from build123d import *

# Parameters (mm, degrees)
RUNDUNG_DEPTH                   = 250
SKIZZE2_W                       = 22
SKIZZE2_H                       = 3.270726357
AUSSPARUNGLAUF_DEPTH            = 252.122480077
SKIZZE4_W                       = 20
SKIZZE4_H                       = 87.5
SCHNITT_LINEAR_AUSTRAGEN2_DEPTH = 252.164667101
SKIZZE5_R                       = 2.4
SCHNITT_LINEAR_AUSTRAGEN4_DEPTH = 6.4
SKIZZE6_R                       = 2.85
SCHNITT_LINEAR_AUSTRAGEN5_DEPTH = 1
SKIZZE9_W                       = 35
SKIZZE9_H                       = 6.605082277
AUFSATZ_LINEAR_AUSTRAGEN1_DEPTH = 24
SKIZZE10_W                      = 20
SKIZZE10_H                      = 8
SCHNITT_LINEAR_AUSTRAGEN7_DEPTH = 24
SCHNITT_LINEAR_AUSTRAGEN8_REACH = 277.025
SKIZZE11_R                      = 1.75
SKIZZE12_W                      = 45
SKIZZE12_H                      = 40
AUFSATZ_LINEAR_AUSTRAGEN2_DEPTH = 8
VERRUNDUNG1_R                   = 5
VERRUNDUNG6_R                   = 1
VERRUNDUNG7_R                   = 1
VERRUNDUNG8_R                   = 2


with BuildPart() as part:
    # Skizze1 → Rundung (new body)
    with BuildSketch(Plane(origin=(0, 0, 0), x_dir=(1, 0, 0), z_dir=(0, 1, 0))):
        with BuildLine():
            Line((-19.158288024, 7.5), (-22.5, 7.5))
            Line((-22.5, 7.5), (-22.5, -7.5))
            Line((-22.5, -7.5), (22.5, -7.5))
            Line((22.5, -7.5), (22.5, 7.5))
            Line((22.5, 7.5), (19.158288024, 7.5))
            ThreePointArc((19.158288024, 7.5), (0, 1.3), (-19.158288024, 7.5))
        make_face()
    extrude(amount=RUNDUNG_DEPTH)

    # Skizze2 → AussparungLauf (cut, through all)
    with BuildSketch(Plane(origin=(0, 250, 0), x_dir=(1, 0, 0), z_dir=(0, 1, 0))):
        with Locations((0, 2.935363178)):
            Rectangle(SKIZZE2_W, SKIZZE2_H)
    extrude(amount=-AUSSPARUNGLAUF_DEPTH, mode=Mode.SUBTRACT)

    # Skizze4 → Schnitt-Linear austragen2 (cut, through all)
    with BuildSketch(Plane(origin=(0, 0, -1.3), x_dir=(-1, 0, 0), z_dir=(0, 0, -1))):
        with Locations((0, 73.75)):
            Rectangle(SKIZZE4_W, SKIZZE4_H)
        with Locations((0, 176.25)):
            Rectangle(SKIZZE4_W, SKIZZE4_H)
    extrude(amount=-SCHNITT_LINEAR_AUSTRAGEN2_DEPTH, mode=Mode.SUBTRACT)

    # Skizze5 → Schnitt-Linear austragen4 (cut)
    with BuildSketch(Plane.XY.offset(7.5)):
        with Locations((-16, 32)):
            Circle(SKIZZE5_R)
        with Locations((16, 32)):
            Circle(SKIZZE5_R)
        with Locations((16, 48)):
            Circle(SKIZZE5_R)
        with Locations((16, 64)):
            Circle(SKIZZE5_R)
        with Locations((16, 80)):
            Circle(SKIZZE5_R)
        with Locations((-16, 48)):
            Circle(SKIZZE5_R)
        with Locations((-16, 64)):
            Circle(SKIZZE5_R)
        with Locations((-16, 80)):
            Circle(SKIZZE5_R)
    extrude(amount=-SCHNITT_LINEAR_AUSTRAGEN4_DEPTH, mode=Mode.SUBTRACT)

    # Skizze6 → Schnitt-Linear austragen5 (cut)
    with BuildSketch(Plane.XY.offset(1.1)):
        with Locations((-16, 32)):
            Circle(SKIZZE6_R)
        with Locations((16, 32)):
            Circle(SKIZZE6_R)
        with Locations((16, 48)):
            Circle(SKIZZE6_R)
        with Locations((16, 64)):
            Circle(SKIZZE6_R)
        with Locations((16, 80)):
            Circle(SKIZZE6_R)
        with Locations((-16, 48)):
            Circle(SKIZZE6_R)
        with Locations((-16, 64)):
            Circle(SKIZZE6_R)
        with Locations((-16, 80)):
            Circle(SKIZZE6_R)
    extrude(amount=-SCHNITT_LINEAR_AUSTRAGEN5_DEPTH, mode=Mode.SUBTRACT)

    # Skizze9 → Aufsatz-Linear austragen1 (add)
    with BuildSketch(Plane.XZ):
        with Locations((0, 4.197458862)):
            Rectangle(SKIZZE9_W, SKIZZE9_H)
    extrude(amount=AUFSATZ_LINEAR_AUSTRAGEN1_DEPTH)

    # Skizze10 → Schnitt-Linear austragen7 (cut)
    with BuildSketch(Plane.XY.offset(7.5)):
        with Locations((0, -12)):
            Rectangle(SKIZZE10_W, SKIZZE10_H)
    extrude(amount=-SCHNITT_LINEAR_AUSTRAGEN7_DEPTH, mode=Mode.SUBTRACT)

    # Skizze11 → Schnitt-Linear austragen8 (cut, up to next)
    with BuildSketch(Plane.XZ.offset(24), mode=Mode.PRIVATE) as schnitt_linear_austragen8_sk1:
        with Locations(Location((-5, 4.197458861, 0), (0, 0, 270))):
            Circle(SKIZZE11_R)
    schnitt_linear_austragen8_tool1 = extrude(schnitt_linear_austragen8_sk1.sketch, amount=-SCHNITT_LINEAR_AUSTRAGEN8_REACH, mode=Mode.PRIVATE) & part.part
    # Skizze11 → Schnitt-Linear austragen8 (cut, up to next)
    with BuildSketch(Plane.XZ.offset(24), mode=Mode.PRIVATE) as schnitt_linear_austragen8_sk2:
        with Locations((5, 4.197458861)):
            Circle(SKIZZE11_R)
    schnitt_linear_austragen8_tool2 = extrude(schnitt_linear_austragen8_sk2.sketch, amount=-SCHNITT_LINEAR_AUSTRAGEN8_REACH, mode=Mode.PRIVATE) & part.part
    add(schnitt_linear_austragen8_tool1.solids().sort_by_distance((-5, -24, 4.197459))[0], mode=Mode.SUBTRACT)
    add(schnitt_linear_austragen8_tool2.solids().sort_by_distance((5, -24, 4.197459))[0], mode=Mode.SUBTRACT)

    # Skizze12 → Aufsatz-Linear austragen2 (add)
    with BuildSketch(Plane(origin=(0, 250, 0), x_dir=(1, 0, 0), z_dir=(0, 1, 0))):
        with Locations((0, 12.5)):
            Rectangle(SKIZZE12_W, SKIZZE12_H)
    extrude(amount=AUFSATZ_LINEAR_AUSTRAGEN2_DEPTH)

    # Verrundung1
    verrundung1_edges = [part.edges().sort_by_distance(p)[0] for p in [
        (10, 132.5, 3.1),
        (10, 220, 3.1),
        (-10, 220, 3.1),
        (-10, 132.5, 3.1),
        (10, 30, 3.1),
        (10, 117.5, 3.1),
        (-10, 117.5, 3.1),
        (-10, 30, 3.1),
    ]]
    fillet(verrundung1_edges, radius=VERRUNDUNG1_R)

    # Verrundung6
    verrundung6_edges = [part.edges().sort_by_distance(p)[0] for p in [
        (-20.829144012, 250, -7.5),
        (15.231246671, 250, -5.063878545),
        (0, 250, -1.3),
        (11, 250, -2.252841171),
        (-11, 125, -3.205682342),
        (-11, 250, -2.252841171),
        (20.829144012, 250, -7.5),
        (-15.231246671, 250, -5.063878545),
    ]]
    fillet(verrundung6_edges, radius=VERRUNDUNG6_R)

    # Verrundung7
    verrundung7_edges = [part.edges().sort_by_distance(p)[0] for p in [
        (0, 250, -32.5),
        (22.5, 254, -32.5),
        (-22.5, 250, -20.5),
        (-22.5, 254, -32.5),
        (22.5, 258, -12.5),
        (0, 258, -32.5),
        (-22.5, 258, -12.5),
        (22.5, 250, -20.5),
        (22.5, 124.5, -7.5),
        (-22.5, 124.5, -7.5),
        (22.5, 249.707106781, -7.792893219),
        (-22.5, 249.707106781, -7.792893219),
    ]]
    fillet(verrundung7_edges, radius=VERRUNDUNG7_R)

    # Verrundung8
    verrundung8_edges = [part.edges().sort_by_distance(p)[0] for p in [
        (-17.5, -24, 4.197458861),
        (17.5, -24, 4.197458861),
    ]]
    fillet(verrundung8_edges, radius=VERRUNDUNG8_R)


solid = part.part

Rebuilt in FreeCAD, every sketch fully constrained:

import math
import FreeCAD as App
import Part
import Sketcher
Q = App.Units.Quantity


def edges_at(feature, points):
    """Names of the edges that pass closest to the given points."""
    edges = feature.Shape.Edges
    near = lambda p: min(range(len(edges)), key=lambda i: edges[i].distToShape(Part.Vertex(*p))[0])
    return sorted({f"Edge{near(p) + 1}" for p in points})


def add_polygon(sketch, points):
    """Adds a closed chain of lines whose ends are joined by coincident constraints."""
    first, n = sketch.GeometryCount, len(points)
    for a, b in zip(points, points[1:] + points[:1]):
        sketch.addGeometry(Part.LineSegment(App.Vector(*a, 0), App.Vector(*b, 0)), False)
    for i in range(n):
        sketch.addConstraint(Sketcher.Constraint("Coincident", first + i, 2, first + (i + 1) % n, 1))

doc = App.newDocument("Part")
body = doc.addObject("PartDesign::Body", "Body")

# Sketch on XZ plane
sketch1 = body.newObject("Sketcher::SketchObject", "Sketch")
sketch1.AttachmentSupport = (doc.getObject("XZ_Plane"), [""])
sketch1.MapMode = "FlatFace"
sketch1.addGeometry([
    Part.LineSegment(App.Vector(-19.2, -7.5, 0), App.Vector(-22.5, -7.5, 0)),  # 0
    Part.LineSegment(App.Vector(-22.5, -7.5, 0), App.Vector(-22.5, 7.5, 0)),  # 1
    Part.LineSegment(App.Vector(-22.5, 7.5, 0), App.Vector(22.5, 7.5, 0)),  # 2
    Part.LineSegment(App.Vector(22.5, 7.5, 0), App.Vector(22.5, -7.5, 0)),  # 3
    Part.LineSegment(App.Vector(22.5, -7.5, 0), App.Vector(19.2, -7.5, 0)),  # 4
    Part.ArcOfCircle(Part.Circle(App.Vector(0, -34, 0), App.Vector(0, 0, 1), 32.7), math.radians(54), math.radians(126)),  # 5
], False)
sketch1.addConstraint([
    Sketcher.Constraint("Coincident", 0, 2, 1, 1),
    Sketcher.Constraint("Coincident", 1, 2, 2, 1),
    Sketcher.Constraint("Coincident", 2, 2, 3, 1),
    Sketcher.Constraint("Coincident", 3, 2, 4, 1),
    Sketcher.Constraint("Coincident", 4, 2, 5, 1),
    Sketcher.Constraint("Coincident", 5, 2, 0, 1),
    Sketcher.Constraint("Horizontal", 0),
    Sketcher.Constraint("Vertical", 1),
    Sketcher.Constraint("Horizontal", 2),
    Sketcher.Constraint("Vertical", 3),
    Sketcher.Constraint("Horizontal", 4),
    Sketcher.Constraint("Symmetric", 0, 2, 2, 2, -1, 1),
    Sketcher.Constraint("Symmetric", 4, 2, 5, 2, -2),
    Sketcher.Constraint("Radius", 5, Q("32.7 mm")),
    Sketcher.Constraint("DistanceX", 2, 1, 2, 2, Q("45 mm")),
    Sketcher.Constraint("DistanceY", 1, 1, 1, 2, Q("15 mm")),
    Sketcher.Constraint("DistanceY", 5, 3, -1, 1, Q("34 mm")),
])
pad1 = body.newObject("PartDesign::Pad", "Pad")
pad1.Profile = sketch1
pad1.Length = 250
pad1.Reversed = True

# Sketch on XZ plane
sketch2 = body.newObject("Sketcher::SketchObject", "Sketch001")
sketch2.AttachmentSupport = (doc.getObject("XZ_Plane"), [""])
sketch2.MapMode = "FlatFace"
sketch2.AttachmentOffset = App.Placement(App.Vector(0, 0, -250), App.Rotation())
add_polygon(sketch2, [(-11, -4.6), (-11, -1.3), (11, -1.3), (11, -4.6)])  # lines 0-3
sketch2.addConstraint([
    Sketcher.Constraint("Vertical", 0),
    Sketcher.Constraint("Horizontal", 1),
    Sketcher.Constraint("Vertical", 2),
    Sketcher.Constraint("Horizontal", 3),
    Sketcher.Constraint("DistanceX", 1, 1, 1, 2, Q("22 mm")),
    Sketcher.Constraint("DistanceX", 0, 2, -1, 1, Q("11 mm")),
    Sketcher.Constraint("DistanceY", 0, 2, -1, 1, Q("1.3 mm")),
    Sketcher.Constraint("DistanceY", 0, 1, 0, 2, Q("3.270726 mm")),
])
pocket1 = body.newObject("PartDesign::Pocket", "Pocket")
pocket1.Profile = sketch2
pocket1.Type = "ThroughAll"
pocket1.Reversed = True

# Sketch on XY plane
sketch3 = body.newObject("Sketcher::SketchObject", "Sketch002")
sketch3.AttachmentSupport = (doc.getObject("XY_Plane"), [""])
sketch3.MapMode = "FlatFace"
sketch3.AttachmentOffset = App.Placement(App.Vector(0, 0, -1.3), App.Rotation())
add_polygon(sketch3, [(10, 118), (10, 30), (-10, 30), (-10, 118)])  # lines 0-3
add_polygon(sketch3, [(10, 220), (10, 132), (-10, 132), (-10, 220)])  # lines 4-7
sketch3.addConstraint([
    Sketcher.Constraint("Vertical", 0),
    Sketcher.Constraint("Horizontal", 1),
    Sketcher.Constraint("Vertical", 2),
    Sketcher.Constraint("Horizontal", 3),
    Sketcher.Constraint("Vertical", 4),
    Sketcher.Constraint("Horizontal", 5),
    Sketcher.Constraint("Vertical", 6),
    Sketcher.Constraint("Horizontal", 7),
    Sketcher.Constraint("Vertical", 3, 2, 4, 2),
    Sketcher.Constraint("Vertical", 2, 2, 5, 2),
    Sketcher.Constraint("Equal", 2, 4),
    Sketcher.Constraint("DistanceX", 1, 2, 1, 1, Q("20 mm")),
    Sketcher.Constraint("DistanceY", 0, 2, 0, 1, Q("87.5 mm")),
    Sketcher.Constraint("DistanceX", -1, 1, 0, 2, Q("10 mm")),
    Sketcher.Constraint("DistanceY", -1, 1, 0, 2, Q("30 mm")),
    Sketcher.Constraint("DistanceY", -1, 1, 6, 2, Q("220 mm")),
])
pocket2 = body.newObject("PartDesign::Pocket", "Pocket001")
pocket2.Profile = sketch3
pocket2.Type = "ThroughAll"
pocket2.Reversed = True

# Sketch on XY plane
sketch4 = body.newObject("Sketcher::SketchObject", "Sketch003")
sketch4.AttachmentSupport = (doc.getObject("XY_Plane"), [""])
sketch4.MapMode = "FlatFace"
sketch4.AttachmentOffset = App.Placement(App.Vector(0, 0, 7.5), App.Rotation())
sketch4.addGeometry([
    Part.Circle(App.Vector(-16, 32, 0), App.Vector(0, 0, 1), 2.4),  # 0
    Part.Circle(App.Vector(16, 32, 0), App.Vector(0, 0, 1), 2.4),  # 1
    Part.Circle(App.Vector(16, 48, 0), App.Vector(0, 0, 1), 2.4),  # 2
    Part.Circle(App.Vector(16, 64, 0), App.Vector(0, 0, 1), 2.4),  # 3
    Part.Circle(App.Vector(16, 80, 0), App.Vector(0, 0, 1), 2.4),  # 4
    Part.Circle(App.Vector(-16, 48, 0), App.Vector(0, 0, 1), 2.4),  # 5
    Part.Circle(App.Vector(-16, 64, 0), App.Vector(0, 0, 1), 2.4),  # 6
    Part.Circle(App.Vector(-16, 80, 0), App.Vector(0, 0, 1), 2.4),  # 7
], False)
sketch4.addConstraint([
    Sketcher.Constraint("Equal", 0, 1),
    Sketcher.Constraint("Equal", 1, 2),
    Sketcher.Constraint("Equal", 2, 3),
    Sketcher.Constraint("Equal", 3, 4),
    Sketcher.Constraint("Equal", 4, 5),
    Sketcher.Constraint("Equal", 5, 6),
    Sketcher.Constraint("Equal", 6, 7),
    Sketcher.Constraint("Symmetric", 0, 3, 1, 3, -2),
    Sketcher.Constraint("Symmetric", 2, 3, 5, 3, -2),
    Sketcher.Constraint("Symmetric", 3, 3, 6, 3, -2),
    Sketcher.Constraint("Symmetric", 4, 3, 7, 3, -2),
    Sketcher.Constraint("Vertical", 1, 3, 2, 3),
    Sketcher.Constraint("Vertical", 2, 3, 3, 3),
    Sketcher.Constraint("Vertical", 3, 3, 4, 3),
    Sketcher.Constraint("Diameter", 0, Q("4.8 mm")),
    Sketcher.Constraint("DistanceX", 0, 3, -1, 1, Q("16 mm")),
    Sketcher.Constraint("DistanceY", -1, 1, 0, 3, Q("32 mm")),
    Sketcher.Constraint("DistanceY", -1, 1, 2, 3, Q("48 mm")),
    Sketcher.Constraint("DistanceY", -1, 1, 3, 3, Q("64 mm")),
    Sketcher.Constraint("DistanceY", -1, 1, 4, 3, Q("80 mm")),
])
pocket3 = body.newObject("PartDesign::Pocket", "Pocket002")
pocket3.Profile = sketch4
pocket3.Length = 6.4

# Sketch on XY plane
sketch5 = body.newObject("Sketcher::SketchObject", "Sketch004")
sketch5.AttachmentSupport = (doc.getObject("XY_Plane"), [""])
sketch5.MapMode = "FlatFace"
sketch5.AttachmentOffset = App.Placement(App.Vector(0, 0, 1.1), App.Rotation())
sketch5.addGeometry([
    Part.Circle(App.Vector(-16, 32, 0), App.Vector(0, 0, 1), 2.9),  # 0
    Part.Circle(App.Vector(16, 32, 0), App.Vector(0, 0, 1), 2.9),  # 1
    Part.Circle(App.Vector(16, 48, 0), App.Vector(0, 0, 1), 2.9),  # 2
    Part.Circle(App.Vector(16, 64, 0), App.Vector(0, 0, 1), 2.9),  # 3
    Part.Circle(App.Vector(16, 80, 0), App.Vector(0, 0, 1), 2.9),  # 4
    Part.Circle(App.Vector(-16, 48, 0), App.Vector(0, 0, 1), 2.9),  # 5
    Part.Circle(App.Vector(-16, 64, 0), App.Vector(0, 0, 1), 2.9),  # 6
    Part.Circle(App.Vector(-16, 80, 0), App.Vector(0, 0, 1), 2.9),  # 7
], False)
sketch5.addConstraint([
    Sketcher.Constraint("Equal", 0, 1),
    Sketcher.Constraint("Equal", 1, 2),
    Sketcher.Constraint("Equal", 2, 3),
    Sketcher.Constraint("Equal", 3, 4),
    Sketcher.Constraint("Equal", 4, 5),
    Sketcher.Constraint("Equal", 5, 6),
    Sketcher.Constraint("Equal", 6, 7),
    Sketcher.Constraint("Symmetric", 0, 3, 1, 3, -2),
    Sketcher.Constraint("Symmetric", 2, 3, 5, 3, -2),
    Sketcher.Constraint("Symmetric", 3, 3, 6, 3, -2),
    Sketcher.Constraint("Symmetric", 4, 3, 7, 3, -2),
    Sketcher.Constraint("Vertical", 1, 3, 2, 3),
    Sketcher.Constraint("Vertical", 2, 3, 3, 3),
    Sketcher.Constraint("Vertical", 3, 3, 4, 3),
    Sketcher.Constraint("Diameter", 0, Q("5.7 mm")),
    Sketcher.Constraint("DistanceX", 0, 3, -1, 1, Q("16 mm")),
    Sketcher.Constraint("DistanceY", -1, 1, 0, 3, Q("32 mm")),
    Sketcher.Constraint("DistanceY", -1, 1, 2, 3, Q("48 mm")),
    Sketcher.Constraint("DistanceY", -1, 1, 3, 3, Q("64 mm")),
    Sketcher.Constraint("DistanceY", -1, 1, 4, 3, Q("80 mm")),
])
pocket4 = body.newObject("PartDesign::Pocket", "Pocket003")
pocket4.Profile = sketch5
pocket4.Length = 1

# Sketch on XZ plane
sketch6 = body.newObject("Sketcher::SketchObject", "Sketch005")
sketch6.AttachmentSupport = (doc.getObject("XZ_Plane"), [""])
sketch6.MapMode = "FlatFace"
add_polygon(sketch6, [(-18, 8), (-18, 1), (18, 1), (18, 8)])  # lines 0-3
sketch6.addConstraint([
    Sketcher.Constraint("Vertical", 0),
    Sketcher.Constraint("Horizontal", 1),
    Sketcher.Constraint("Vertical", 2),
    Sketcher.Constraint("Horizontal", 3),
    Sketcher.Constraint("DistanceX", 1, 1, 1, 2, Q("35 mm")),
    Sketcher.Constraint("DistanceX", 0, 2, -1, 1, Q("17.5 mm")),
    Sketcher.Constraint("DistanceY", -1, 1, 2, 2, Q("7.5 mm")),
    Sketcher.Constraint("DistanceY", 0, 2, 0, 1, Q("6.605082 mm")),
])
pad2 = body.newObject("PartDesign::Pad", "Pad001")
pad2.Profile = sketch6
pad2.Length = 24

# Sketch on XY plane
sketch7 = body.newObject("Sketcher::SketchObject", "Sketch006")
sketch7.AttachmentSupport = (doc.getObject("XY_Plane"), [""])
sketch7.MapMode = "FlatFace"
sketch7.AttachmentOffset = App.Placement(App.Vector(0, 0, 7.5), App.Rotation())
add_polygon(sketch7, [(-10, -8), (-10, -16), (10, -16), (10, -8)])  # lines 0-3
sketch7.addConstraint([
    Sketcher.Constraint("Vertical", 0),
    Sketcher.Constraint("Horizontal", 1),
    Sketcher.Constraint("Vertical", 2),
    Sketcher.Constraint("Horizontal", 3),
    Sketcher.Constraint("DistanceX", 1, 1, 1, 2, Q("20 mm")),
    Sketcher.Constraint("DistanceY", 0, 2, 0, 1, Q("8 mm")),
    Sketcher.Constraint("DistanceX", 0, 2, -1, 1, Q("10 mm")),
    Sketcher.Constraint("DistanceY", 0, 2, -1, 1, Q("16 mm")),
])
pocket5 = body.newObject("PartDesign::Pocket", "Pocket004")
pocket5.Profile = sketch7
pocket5.Length = 24

# Sketch on XZ plane
sketch8 = body.newObject("Sketcher::SketchObject", "Sketch007")
sketch8.AttachmentSupport = (doc.getObject("XZ_Plane"), [""])
sketch8.MapMode = "FlatFace"
sketch8.AttachmentOffset = App.Placement(App.Vector(0, 0, 24), App.Rotation())
sketch8.addGeometry(Part.Circle(App.Vector(-5, 4.2, 0), App.Vector(0, 0, 1), 1.8), False)
sketch8.addConstraint([
    Sketcher.Constraint("Diameter", 0, Q("3.5 mm")),
    Sketcher.Constraint("DistanceX", 0, 3, -1, 1, Q("5 mm")),
    Sketcher.Constraint("DistanceY", -1, 1, 0, 3, Q("4.197459 mm")),
])
pocket6 = body.newObject("PartDesign::Pocket", "Pocket005")
pocket6.Profile = sketch8
pocket6.Type = "UpToFirst"

# Sketch on XZ plane
sketch9 = body.newObject("Sketcher::SketchObject", "Sketch008")
sketch9.AttachmentSupport = (doc.getObject("XZ_Plane"), [""])
sketch9.MapMode = "FlatFace"
sketch9.AttachmentOffset = App.Placement(App.Vector(0, 0, 24), App.Rotation())
sketch9.addGeometry(Part.Circle(App.Vector(5, 4.2, 0), App.Vector(0, 0, 1), 1.8), False)
sketch9.addConstraint([
    Sketcher.Constraint("Diameter", 0, Q("3.5 mm")),
    Sketcher.Constraint("DistanceX", -1, 1, 0, 3, Q("5 mm")),
    Sketcher.Constraint("DistanceY", -1, 1, 0, 3, Q("4.197459 mm")),
])
pocket7 = body.newObject("PartDesign::Pocket", "Pocket006")
pocket7.Profile = sketch9
pocket7.Type = "UpToFirst"

# Sketch on XZ plane
sketch10 = body.newObject("Sketcher::SketchObject", "Sketch009")
sketch10.AttachmentSupport = (doc.getObject("XZ_Plane"), [""])
sketch10.MapMode = "FlatFace"
sketch10.AttachmentOffset = App.Placement(App.Vector(0, 0, -250), App.Rotation())
add_polygon(sketch10, [(-22, -32), (-22, 8), (22, 8), (22, -32)])  # lines 0-3
sketch10.addConstraint([
    Sketcher.Constraint("Vertical", 0),
    Sketcher.Constraint("Horizontal", 1),
    Sketcher.Constraint("Vertical", 2),
    Sketcher.Constraint("Horizontal", 3),
    Sketcher.Constraint("DistanceX", 1, 1, 1, 2, Q("45 mm")),
    Sketcher.Constraint("DistanceY", 0, 1, 0, 2, Q("40 mm")),
    Sketcher.Constraint("DistanceX", 0, 2, -1, 1, Q("22.5 mm")),
    Sketcher.Constraint("DistanceY", -1, 1, 0, 2, Q("7.5 mm")),
])
pad3 = body.newObject("PartDesign::Pad", "Pad002")
pad3.Profile = sketch10
pad3.Length = 8
pad3.Reversed = True
doc.recompute()

fillet = body.newObject("PartDesign::Fillet", "Fillet")
fillet.Base = (pad3, edges_at(pad3, [
    (10, 132.5, 3.1),
    (10, 220, 3.1),
    (-10, 220, 3.1),
    (-10, 132.5, 3.1),
    (10, 30, 3.1),
    (10, 117.5, 3.1),
    (-10, 117.5, 3.1),
    (-10, 30, 3.1),
]))
fillet.Radius = 5
doc.recompute()

fillet2 = body.newObject("PartDesign::Fillet", "Fillet001")
fillet2.Base = (fillet, edges_at(fillet, [
    (-20.829, 250, -7.5),
    (15.231, 250, -5.064),
    (0, 250, -1.3),
    (11, 250, -2.253),
    (-11, 125, -3.206),
    (-11, 250, -2.253),
    (20.829, 250, -7.5),
    (-15.231, 250, -5.064),
]))
fillet2.Radius = 1
doc.recompute()

fillet3 = body.newObject("PartDesign::Fillet", "Fillet002")
fillet3.Base = (fillet2, edges_at(fillet2, [
    (0, 250, -32.5),
    (22.5, 254, -32.5),
    (-22.5, 250, -20.5),
    (-22.5, 254, -32.5),
    (22.5, 258, -12.5),
    (0, 258, -32.5),
    (-22.5, 258, -12.5),
    (22.5, 250, -20.5),
    (22.5, 124.5, -7.5),
    (-22.5, 124.5, -7.5),
    (22.5, 249.707, -7.793),
    (-22.5, 249.707, -7.793),
]))
fillet3.Radius = 1
doc.recompute()

fillet4 = body.newObject("PartDesign::Fillet", "Fillet003")
fillet4.Base = (fillet3, edges_at(fillet3, [(-17.5, -24, 4.197), (17.5, -24, 4.197)]))
fillet4.Radius = 2

doc.recompute()
